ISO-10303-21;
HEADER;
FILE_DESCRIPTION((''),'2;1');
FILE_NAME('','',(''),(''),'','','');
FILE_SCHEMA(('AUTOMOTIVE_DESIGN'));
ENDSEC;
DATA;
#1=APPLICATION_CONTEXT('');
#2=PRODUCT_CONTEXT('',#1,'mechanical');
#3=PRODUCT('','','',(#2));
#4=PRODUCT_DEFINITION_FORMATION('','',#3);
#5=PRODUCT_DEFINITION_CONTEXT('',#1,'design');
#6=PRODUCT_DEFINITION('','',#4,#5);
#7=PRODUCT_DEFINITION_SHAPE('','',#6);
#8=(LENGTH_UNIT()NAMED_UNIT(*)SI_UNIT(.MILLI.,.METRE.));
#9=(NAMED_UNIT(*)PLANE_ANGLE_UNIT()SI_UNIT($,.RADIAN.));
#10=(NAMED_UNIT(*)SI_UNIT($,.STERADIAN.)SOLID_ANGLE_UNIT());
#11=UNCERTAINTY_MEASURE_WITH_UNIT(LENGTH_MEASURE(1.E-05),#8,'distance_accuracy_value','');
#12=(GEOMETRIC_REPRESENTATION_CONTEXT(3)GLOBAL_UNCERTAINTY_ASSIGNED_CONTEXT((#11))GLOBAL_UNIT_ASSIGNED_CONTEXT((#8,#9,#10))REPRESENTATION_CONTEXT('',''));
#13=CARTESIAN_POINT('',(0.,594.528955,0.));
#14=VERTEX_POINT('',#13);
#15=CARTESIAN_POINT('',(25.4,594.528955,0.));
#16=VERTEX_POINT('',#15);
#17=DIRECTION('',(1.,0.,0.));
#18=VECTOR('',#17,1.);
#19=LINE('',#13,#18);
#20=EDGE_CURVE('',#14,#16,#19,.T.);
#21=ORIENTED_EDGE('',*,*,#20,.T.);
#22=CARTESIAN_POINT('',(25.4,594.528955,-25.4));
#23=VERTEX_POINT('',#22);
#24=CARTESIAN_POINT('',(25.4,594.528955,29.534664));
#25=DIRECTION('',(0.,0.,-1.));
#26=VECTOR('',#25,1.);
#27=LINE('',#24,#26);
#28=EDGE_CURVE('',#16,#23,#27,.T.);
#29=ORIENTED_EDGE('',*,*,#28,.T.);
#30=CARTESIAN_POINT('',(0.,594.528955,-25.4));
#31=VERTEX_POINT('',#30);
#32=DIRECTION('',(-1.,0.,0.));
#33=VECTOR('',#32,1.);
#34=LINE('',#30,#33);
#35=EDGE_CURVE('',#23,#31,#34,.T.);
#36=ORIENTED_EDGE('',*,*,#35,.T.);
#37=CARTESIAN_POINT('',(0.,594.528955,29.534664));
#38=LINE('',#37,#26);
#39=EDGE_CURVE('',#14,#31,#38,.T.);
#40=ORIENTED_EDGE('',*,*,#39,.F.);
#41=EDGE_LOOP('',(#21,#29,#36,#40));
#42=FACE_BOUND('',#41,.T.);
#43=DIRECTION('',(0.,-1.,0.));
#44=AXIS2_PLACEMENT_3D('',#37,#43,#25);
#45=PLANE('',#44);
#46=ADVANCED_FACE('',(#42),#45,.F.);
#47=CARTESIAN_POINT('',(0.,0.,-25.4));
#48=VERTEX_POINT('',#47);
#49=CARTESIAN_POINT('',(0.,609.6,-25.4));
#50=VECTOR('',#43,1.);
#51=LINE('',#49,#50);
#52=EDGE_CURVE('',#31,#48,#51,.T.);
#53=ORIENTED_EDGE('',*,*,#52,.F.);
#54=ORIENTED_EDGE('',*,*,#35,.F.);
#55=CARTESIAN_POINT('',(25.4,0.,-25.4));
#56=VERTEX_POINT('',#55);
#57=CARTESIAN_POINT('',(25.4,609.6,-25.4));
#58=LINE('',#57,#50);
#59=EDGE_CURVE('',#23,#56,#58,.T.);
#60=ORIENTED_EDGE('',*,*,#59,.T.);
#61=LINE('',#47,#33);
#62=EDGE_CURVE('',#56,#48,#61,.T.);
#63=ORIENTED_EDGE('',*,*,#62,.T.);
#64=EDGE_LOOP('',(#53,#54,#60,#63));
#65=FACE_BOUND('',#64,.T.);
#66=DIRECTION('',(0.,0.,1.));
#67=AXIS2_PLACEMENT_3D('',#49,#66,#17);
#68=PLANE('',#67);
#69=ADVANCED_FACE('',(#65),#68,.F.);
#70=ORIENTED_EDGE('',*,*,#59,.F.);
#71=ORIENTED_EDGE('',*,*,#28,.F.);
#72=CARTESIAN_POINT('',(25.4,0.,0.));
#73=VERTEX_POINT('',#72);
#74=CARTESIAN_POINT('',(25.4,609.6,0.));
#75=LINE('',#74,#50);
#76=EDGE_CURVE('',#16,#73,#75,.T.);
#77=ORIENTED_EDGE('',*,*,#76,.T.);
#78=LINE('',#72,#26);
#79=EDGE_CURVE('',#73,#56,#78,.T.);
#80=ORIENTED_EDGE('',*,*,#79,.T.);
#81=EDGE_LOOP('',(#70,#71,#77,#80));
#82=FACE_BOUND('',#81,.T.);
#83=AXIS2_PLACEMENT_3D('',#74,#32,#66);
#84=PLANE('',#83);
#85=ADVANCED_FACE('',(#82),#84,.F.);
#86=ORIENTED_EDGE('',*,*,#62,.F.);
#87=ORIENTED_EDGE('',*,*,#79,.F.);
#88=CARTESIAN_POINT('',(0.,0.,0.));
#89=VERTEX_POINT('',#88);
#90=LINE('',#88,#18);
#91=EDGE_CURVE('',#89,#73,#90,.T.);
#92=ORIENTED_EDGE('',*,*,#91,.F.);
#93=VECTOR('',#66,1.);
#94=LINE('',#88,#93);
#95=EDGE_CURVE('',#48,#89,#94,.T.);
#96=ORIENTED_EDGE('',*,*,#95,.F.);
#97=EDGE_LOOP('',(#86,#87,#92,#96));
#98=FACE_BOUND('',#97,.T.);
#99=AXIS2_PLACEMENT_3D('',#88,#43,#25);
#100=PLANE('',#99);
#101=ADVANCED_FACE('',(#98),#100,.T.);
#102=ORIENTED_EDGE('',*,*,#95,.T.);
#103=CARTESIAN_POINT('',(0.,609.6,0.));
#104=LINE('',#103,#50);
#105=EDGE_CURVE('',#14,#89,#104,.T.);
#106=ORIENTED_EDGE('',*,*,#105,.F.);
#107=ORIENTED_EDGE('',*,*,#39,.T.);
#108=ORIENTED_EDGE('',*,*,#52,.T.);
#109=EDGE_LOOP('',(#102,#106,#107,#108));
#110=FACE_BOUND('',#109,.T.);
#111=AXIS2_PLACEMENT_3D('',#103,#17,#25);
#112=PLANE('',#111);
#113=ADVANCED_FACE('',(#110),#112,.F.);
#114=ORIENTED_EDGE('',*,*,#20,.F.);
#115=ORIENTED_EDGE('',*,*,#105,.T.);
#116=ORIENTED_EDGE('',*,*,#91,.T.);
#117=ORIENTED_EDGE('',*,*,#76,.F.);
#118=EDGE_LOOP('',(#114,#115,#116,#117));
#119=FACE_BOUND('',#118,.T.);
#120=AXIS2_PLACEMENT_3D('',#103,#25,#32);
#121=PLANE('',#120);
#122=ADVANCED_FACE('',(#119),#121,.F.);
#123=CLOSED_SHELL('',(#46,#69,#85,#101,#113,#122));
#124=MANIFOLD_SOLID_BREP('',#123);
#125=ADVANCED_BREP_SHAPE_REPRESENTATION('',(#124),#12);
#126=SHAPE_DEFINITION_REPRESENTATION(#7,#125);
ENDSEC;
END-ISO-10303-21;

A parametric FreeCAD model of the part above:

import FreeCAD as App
import Part
import Sketcher
from FreeCAD import Vector
Q = App.Units.Quantity


def add_polygon(sketch, points):
    """Adds a closed chain of lines whose ends are joined by coincident constraints."""
    first, n = sketch.GeometryCount, len(points)
    for a, b in zip(points, points[1:] + points[:1]):
        sketch.addGeometry(Part.LineSegment(App.Vector(*a, 0), App.Vector(*b, 0)), False)
    for i in range(n):
        sketch.addConstraint(Sketcher.Constraint("Coincident", first + i, 2, first + (i + 1) % n, 1))

doc = App.newDocument("Part")
body = doc.addObject("PartDesign::Body", "Body")

# Sketch on XZ plane
sketch1 = doc.addObject("Sketcher::SketchObject", "Sketch")
body.addObject(sketch1)
sketch1.AttachmentSupport = (doc.XZ_Plane, [""])
sketch1.MapMode = "FlatFace"
add_polygon(sketch1, [(0, -25), (0, 0), (25, 0), (25, -25)])  # lines 0-3
sketch1.addConstraint([
    Sketcher.Constraint("Vertical", 0),
    Sketcher.Constraint("Horizontal", 1),
    Sketcher.Constraint("Vertical", 2),
    Sketcher.Constraint("Horizontal", 3),
    Sketcher.Constraint("Coincident", 0, 2, -1, 1),
    Sketcher.Constraint("Equal", 3, 0),
    Sketcher.Constraint("DistanceX", 1, 1, 1, 2, Q("1 in")),
])
pad1 = doc.addObject("PartDesign::Pad", "Pad")
body.addObject(pad1)
pad1.Profile = sketch1
pad1.Length = Q("24 in")
pad1.Reversed = True

# Sketch on XY plane
sketch2 = doc.addObject("Sketcher::SketchObject", "Sketch001")
body.addObject(sketch2)
sketch2.AttachmentSupport = (doc.XY_Plane, [""])
sketch2.MapMode = "FlatFace"
sketch2.AttachmentOffset = App.Placement(Vector(0, 0, -1 * 25.4), App.Rotation())
add_polygon(sketch2, [(25, 610), (25, 595), (0, 595), (0, 610)])  # lines 0-3
sketch2.addConstraint([
    Sketcher.Constraint("Vertical", 0),
    Sketcher.Constraint("Horizontal", 1),
    Sketcher.Constraint("Vertical", 2),
    Sketcher.Constraint("Horizontal", 3),
    Sketcher.Constraint("PointOnObject", 1, 2, -2),
    Sketcher.Constraint("DistanceX", 1, 2, 1, 1, Q("1 in")),
    Sketcher.Constraint("DistanceY", -1, 1, 2, 2, Q("24 in")),
    Sketcher.Constraint("DistanceY", 0, 2, 0, 1, Q("15.071045 mm")),
])
pocket1 = doc.addObject("PartDesign::Pocket", "Pocket")
body.addObject(pocket1)
pocket1.Profile = sketch2
pocket1.Length = Q("1 in")
pocket1.Reversed = True

doc.recompute()
